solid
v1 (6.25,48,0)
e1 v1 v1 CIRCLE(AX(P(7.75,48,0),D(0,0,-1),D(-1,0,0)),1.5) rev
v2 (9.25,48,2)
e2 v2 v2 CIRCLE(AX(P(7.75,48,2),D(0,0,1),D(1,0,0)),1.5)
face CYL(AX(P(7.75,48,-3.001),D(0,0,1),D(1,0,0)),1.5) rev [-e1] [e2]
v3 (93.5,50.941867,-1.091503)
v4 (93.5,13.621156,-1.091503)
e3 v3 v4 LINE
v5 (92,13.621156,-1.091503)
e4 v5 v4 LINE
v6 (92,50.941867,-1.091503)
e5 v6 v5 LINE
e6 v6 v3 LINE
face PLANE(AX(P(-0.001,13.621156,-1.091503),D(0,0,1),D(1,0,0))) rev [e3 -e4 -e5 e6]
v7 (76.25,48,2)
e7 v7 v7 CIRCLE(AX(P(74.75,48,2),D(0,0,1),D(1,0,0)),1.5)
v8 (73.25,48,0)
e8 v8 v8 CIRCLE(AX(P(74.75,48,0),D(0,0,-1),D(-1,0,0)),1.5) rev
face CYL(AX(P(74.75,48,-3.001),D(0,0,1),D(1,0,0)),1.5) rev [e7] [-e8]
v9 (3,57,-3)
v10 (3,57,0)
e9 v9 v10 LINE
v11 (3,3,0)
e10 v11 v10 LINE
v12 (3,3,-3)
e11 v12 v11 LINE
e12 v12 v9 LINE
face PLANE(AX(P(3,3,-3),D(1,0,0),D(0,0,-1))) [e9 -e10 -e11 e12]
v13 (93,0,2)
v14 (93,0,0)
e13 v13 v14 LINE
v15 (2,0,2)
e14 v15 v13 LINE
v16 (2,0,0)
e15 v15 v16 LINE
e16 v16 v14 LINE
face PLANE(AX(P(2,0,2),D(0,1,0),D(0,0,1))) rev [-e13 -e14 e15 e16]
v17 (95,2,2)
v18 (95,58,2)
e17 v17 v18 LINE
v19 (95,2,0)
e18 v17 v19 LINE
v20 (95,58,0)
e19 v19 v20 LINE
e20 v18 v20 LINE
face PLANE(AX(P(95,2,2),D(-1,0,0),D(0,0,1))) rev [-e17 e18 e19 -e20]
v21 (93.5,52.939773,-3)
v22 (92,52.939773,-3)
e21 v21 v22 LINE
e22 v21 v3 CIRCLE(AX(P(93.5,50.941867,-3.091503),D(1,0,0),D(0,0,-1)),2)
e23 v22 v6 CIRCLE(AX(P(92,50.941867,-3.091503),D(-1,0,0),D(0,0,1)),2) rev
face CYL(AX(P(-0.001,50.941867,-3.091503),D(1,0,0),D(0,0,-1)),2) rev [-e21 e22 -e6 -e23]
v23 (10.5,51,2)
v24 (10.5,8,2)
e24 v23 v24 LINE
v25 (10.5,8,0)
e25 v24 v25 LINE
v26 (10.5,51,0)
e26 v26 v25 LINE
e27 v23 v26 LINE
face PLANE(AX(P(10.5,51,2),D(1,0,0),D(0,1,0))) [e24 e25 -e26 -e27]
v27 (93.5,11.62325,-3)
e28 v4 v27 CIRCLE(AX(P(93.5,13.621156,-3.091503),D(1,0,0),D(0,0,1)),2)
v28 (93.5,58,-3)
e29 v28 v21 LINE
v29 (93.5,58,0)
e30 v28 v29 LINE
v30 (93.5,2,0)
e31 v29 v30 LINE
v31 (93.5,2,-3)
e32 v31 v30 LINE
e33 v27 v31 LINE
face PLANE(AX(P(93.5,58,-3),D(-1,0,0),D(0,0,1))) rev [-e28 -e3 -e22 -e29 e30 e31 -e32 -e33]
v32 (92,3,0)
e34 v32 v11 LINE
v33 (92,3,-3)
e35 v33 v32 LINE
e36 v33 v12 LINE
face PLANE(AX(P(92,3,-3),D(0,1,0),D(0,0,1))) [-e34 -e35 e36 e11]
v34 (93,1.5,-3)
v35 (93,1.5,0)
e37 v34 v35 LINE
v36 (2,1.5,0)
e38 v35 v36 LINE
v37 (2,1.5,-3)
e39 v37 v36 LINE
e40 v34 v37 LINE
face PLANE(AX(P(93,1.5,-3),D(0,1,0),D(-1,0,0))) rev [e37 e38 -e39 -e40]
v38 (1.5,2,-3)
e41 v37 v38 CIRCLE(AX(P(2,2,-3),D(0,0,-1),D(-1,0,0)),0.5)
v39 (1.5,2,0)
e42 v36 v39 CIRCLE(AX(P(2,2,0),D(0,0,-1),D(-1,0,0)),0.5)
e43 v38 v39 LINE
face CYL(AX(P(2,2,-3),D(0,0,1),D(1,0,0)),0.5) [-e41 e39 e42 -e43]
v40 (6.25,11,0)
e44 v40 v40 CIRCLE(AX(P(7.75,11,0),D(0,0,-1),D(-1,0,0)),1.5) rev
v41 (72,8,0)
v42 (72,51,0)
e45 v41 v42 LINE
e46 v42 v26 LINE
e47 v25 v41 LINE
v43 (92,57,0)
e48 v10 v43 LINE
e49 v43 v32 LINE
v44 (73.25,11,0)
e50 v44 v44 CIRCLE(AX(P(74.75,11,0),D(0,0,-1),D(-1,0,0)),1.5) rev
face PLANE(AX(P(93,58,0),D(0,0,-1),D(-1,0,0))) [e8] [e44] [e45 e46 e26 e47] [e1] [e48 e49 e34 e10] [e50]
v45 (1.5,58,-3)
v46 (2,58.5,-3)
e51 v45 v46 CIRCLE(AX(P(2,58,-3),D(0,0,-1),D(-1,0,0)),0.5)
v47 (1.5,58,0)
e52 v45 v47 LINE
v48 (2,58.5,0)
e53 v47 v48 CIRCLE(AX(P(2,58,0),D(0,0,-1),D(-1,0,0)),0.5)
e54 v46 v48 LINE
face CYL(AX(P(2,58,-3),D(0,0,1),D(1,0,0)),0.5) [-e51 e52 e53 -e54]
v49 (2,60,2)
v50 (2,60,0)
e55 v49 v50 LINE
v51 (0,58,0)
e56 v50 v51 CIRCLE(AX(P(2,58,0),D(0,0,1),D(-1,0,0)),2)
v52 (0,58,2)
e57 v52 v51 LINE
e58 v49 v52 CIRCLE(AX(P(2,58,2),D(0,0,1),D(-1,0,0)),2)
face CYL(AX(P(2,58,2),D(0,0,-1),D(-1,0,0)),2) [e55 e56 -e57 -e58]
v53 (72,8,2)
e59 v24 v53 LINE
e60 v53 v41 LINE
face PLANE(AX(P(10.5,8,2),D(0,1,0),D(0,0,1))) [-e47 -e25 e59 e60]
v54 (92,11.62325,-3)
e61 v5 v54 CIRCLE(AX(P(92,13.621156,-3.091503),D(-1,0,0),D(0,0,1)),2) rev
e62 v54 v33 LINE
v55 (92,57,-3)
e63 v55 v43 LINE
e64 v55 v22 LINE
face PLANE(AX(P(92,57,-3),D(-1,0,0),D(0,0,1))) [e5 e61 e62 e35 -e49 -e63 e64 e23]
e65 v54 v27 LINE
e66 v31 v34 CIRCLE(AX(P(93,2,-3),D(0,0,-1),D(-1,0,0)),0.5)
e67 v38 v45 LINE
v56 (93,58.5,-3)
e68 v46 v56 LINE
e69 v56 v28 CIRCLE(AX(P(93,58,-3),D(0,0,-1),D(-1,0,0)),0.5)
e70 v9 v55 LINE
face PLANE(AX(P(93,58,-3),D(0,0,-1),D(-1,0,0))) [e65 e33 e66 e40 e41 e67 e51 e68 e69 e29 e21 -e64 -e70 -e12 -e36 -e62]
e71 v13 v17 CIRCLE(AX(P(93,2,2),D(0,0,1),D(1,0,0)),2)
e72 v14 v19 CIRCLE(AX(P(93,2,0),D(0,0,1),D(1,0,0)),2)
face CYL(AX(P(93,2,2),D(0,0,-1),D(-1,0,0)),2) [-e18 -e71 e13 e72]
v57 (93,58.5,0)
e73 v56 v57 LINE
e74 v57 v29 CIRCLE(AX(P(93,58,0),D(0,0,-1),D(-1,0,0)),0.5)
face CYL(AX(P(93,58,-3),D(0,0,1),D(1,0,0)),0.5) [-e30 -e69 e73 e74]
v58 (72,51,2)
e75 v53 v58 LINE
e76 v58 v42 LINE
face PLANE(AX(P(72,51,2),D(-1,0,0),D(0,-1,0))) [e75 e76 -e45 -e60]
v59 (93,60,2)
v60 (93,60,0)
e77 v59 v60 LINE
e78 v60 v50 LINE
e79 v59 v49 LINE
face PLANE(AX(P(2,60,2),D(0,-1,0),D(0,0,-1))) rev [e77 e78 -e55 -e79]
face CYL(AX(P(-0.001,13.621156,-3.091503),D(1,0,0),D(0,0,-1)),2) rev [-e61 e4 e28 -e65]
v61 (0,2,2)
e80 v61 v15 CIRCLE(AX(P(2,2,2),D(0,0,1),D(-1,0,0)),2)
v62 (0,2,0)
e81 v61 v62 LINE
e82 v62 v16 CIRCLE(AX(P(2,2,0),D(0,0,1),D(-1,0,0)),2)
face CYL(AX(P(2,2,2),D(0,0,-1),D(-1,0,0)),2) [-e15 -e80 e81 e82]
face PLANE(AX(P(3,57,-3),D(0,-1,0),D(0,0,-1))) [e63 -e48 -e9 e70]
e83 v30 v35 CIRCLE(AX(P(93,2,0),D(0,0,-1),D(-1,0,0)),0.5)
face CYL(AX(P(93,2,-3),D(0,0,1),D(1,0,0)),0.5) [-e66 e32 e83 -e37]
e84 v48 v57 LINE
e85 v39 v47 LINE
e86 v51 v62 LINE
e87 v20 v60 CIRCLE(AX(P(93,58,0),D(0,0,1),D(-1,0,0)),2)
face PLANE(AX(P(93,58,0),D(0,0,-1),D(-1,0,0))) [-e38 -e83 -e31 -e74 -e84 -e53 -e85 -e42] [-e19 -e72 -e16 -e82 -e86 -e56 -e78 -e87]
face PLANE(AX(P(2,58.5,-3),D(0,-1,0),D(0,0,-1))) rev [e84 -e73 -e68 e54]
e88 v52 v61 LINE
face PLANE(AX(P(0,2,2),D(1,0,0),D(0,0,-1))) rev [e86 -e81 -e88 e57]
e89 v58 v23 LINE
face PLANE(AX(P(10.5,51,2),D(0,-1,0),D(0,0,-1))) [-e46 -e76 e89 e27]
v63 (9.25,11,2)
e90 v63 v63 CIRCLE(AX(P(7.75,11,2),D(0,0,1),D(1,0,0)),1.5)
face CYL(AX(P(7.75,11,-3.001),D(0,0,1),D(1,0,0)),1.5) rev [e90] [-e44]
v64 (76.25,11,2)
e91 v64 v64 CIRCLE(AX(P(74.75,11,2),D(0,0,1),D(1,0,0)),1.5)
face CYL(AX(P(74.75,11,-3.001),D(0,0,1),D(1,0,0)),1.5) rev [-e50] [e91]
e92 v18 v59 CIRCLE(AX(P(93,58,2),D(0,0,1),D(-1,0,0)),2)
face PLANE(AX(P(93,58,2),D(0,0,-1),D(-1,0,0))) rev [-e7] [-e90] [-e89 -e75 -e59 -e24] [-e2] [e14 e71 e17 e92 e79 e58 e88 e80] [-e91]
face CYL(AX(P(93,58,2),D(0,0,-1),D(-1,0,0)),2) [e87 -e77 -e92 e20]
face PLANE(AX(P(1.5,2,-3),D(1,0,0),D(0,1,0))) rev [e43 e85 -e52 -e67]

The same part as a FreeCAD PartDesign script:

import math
import FreeCAD as App
import Part
import Sketcher

V = App.Vector
Q = App.Units.Quantity


def add_polygon(sketch, points):
    """Adds a closed chain of lines whose ends are joined by coincident constraints."""
    first, n = sketch.GeometryCount, len(points)
    for a, b in zip(points, points[1:] + points[:1]):
        sketch.addGeometry(Part.LineSegment(App.Vector(*a, 0), App.Vector(*b, 0)), False)
    for i in range(n):
        sketch.addConstraint(Sketcher.Constraint("Coincident", first + i, 2, first + (i + 1) % n, 1))

doc = App.newDocument("Part")
body = doc.addObject("PartDesign::Body", "Body")

# Sketch on XY plane
sketch1 = body.newObject("Sketcher::SketchObject", "Sketch")
sketch1.AttachmentSupport = (doc.getObject("XY_Plane"), [""])
sketch1.MapMode = "FlatFace"
sketch1.addGeometry(Part.LineSegment(V(2, 0, 0), V(93, 0, 0)), False)  # 0
sketch1.addGeometry(Part.ArcOfCircle(Part.Circle(V(93, 2, 0), V(0, 0, 1), 2), math.radians(-90), math.radians(0)), False)  # 1
sketch1.addGeometry(Part.LineSegment(V(95, 2, 0), V(95, 58, 0)), False)  # 2
sketch1.addGeometry(Part.ArcOfCircle(Part.Circle(V(93, 58, 0), V(0, 0, 1), 2), math.radians(0), math.radians(90)), False)  # 3
sketch1.addGeometry(Part.LineSegment(V(93, 60, 0), V(2, 60, 0)), False)  # 4
sketch1.addGeometry(Part.ArcOfCircle(Part.Circle(V(2, 58, 0), V(0, 0, 1), 2), math.radians(90), math.radians(180)), False)  # 5
sketch1.addGeometry(Part.LineSegment(V(0, 58, 0), V(0, 2, 0)), False)  # 6
sketch1.addGeometry(Part.ArcOfCircle(Part.Circle(V(2, 2, 0), V(0, 0, 1), 2), math.radians(-180), math.radians(-90)), False)  # 7
add_polygon(sketch1, [(72, 8), (10.5, 8), (10.5, 51), (72, 51)])  # lines 8-11
sketch1.addConstraint(Sketcher.Constraint("Tangent", 0, 2, 1, 1))
sketch1.addConstraint(Sketcher.Constraint("Tangent", 1, 2, 2, 1))
sketch1.addConstraint(Sketcher.Constraint("Tangent", 2, 2, 3, 1))
sketch1.addConstraint(Sketcher.Constraint("Tangent", 3, 2, 4, 1))
sketch1.addConstraint(Sketcher.Constraint("Tangent", 4, 2, 5, 1))
sketch1.addConstraint(Sketcher.Constraint("Tangent", 5, 2, 6, 1))
sketch1.addConstraint(Sketcher.Constraint("Tangent", 6, 2, 7, 1))
sketch1.addConstraint(Sketcher.Constraint("Tangent", 7, 2, 0, 1))
sketch1.addConstraint(Sketcher.Constraint("Horizontal", 0))
sketch1.addConstraint(Sketcher.Constraint("Vertical", 2))
sketch1.addConstraint(Sketcher.Constraint("Horizontal", 4))
sketch1.addConstraint(Sketcher.Constraint("Vertical", 6))
sketch1.addConstraint(Sketcher.Constraint("Horizontal", 8))
sketch1.addConstraint(Sketcher.Constraint("Vertical", 9))
sketch1.addConstraint(Sketcher.Constraint("Horizontal", 10))
sketch1.addConstraint(Sketcher.Constraint("Vertical", 11))
sketch1.addConstraint(Sketcher.Constraint("Equal", 1, 3))
sketch1.addConstraint(Sketcher.Constraint("Equal", 3, 5))
sketch1.addConstraint(Sketcher.Constraint("Equal", 5, 7))
sketch1.addConstraint(Sketcher.Constraint("PointOnObject", 0, 2, -1))
sketch1.addConstraint(Sketcher.Constraint("PointOnObject", 5, 2, -2))
sketch1.addConstraint(Sketcher.Constraint("Radius", 1, Q("2 mm")))
sketch1.addConstraint(Sketcher.Constraint("DistanceX", 0, 1, 0, 2, Q("91 mm")))
sketch1.addConstraint(Sketcher.Constraint("DistanceY", 2, 1, 2, 2, Q("56 mm")))
sketch1.addConstraint(Sketcher.Constraint("DistanceY", 9, 1, 9, 2, Q("43 mm")))
sketch1.addConstraint(Sketcher.Constraint("DistanceX", 8, 2, 8, 1, Q("61.5 mm")))
sketch1.addConstraint(Sketcher.Constraint("DistanceY", -1, 1, 8, 2, Q("8 mm")))
sketch1.addConstraint(Sketcher.Constraint("DistanceX", -1, 1, 10, 2, Q("72 mm")))
pad1 = body.newObject("PartDesign::Pad", "Pad")
pad1.Profile = sketch1
pad1.Length = 2

# Sketch on XY plane
sketch2 = body.newObject("Sketcher::SketchObject", "Sketch001")
sketch2.AttachmentSupport = (doc.getObject("XY_Plane"), [""])
sketch2.MapMode = "FlatFace"
sketch2.addGeometry(Part.LineSegment(V(93.5, 58, 0), V(93.5, 2, 0)), False)  # 0
sketch2.addGeometry(Part.ArcOfCircle(Part.Circle(V(93, 2, 0), V(0, 0, 1), 0.5), math.radians(-90), math.radians(0)), False)  # 1
sketch2.addGeometry(Part.LineSegment(V(93, 1.5, 0), V(2, 1.5, 0)), False)  # 2
sketch2.addGeometry(Part.ArcOfCircle(Part.Circle(V(2, 2, 0), V(0, 0, 1), 0.5), math.radians(180), math.radians(270)), False)  # 3
sketch2.addGeometry(Part.LineSegment(V(1.5, 2, 0), V(1.5, 58, 0)), False)  # 4
sketch2.addGeometry(Part.ArcOfCircle(Part.Circle(V(2, 58, 0), V(0, 0, 1), 0.5), math.radians(90), math.radians(180)), False)  # 5
sketch2.addGeometry(Part.LineSegment(V(2, 58.5, 0), V(93, 58.5, 0)), False)  # 6
sketch2.addGeometry(Part.ArcOfCircle(Part.Circle(V(93, 58, 0), V(0, 0, 1), 0.5), math.radians(0), math.radians(90)), False)  # 7
add_polygon(sketch2, [(3, 3), (92, 3), (92, 57), (3, 57)])  # lines 8-11
sketch2.addConstraint(Sketcher.Constraint("Tangent", 0, 2, 1, 2))
sketch2.addConstraint(Sketcher.Constraint("Tangent", 1, 1, 2, 1))
sketch2.addConstraint(Sketcher.Constraint("Tangent", 2, 2, 3, 2))
sketch2.addConstraint(Sketcher.Constraint("Tangent", 3, 1, 4, 1))
sketch2.addConstraint(Sketcher.Constraint("Tangent", 4, 2, 5, 2))
sketch2.addConstraint(Sketcher.Constraint("Tangent", 5, 1, 6, 1))
sketch2.addConstraint(Sketcher.Constraint("Tangent", 6, 2, 7, 2))
sketch2.addConstraint(Sketcher.Constraint("Tangent", 7, 1, 0, 1))
sketch2.addConstraint(Sketcher.Constraint("Vertical", 0))
sketch2.addConstraint(Sketcher.Constraint("Horizontal", 2))
sketch2.addConstraint(Sketcher.Constraint("Vertical", 4))
sketch2.addConstraint(Sketcher.Constraint("Horizontal", 6))
sketch2.addConstraint(Sketcher.Constraint("Horizontal", 8))
sketch2.addConstraint(Sketcher.Constraint("Vertical", 9))
sketch2.addConstraint(Sketcher.Constraint("Horizontal", 10))
sketch2.addConstraint(Sketcher.Constraint("Vertical", 11))
sketch2.addConstraint(Sketcher.Constraint("Equal", 1, 3))
sketch2.addConstraint(Sketcher.Constraint("Equal", 3, 5))
sketch2.addConstraint(Sketcher.Constraint("Equal", 5, 7))
sketch2.addConstraint(Sketcher.Constraint("Radius", 1, Q("0.5 mm")))
sketch2.addConstraint(Sketcher.Constraint("DistanceX", 2, 2, 2, 1, Q("91 mm")))
sketch2.addConstraint(Sketcher.Constraint("DistanceX", 8, 1, 8, 2, Q("89 mm")))
sketch2.addConstraint(Sketcher.Constraint("DistanceY", 0, 2, 0, 1, Q("56 mm")))
sketch2.addConstraint(Sketcher.Constraint("DistanceY", 9, 1, 9, 2, Q("54 mm")))
sketch2.addConstraint(Sketcher.Constraint("DistanceX", -1, 1, 1, 3, Q("93 mm")))
sketch2.addConstraint(Sketcher.Constraint("DistanceY", -1, 1, 1, 3, Q("2 mm")))
sketch2.addConstraint(Sketcher.Constraint("DistanceX", -1, 1, 8, 2, Q("92 mm")))
sketch2.addConstraint(Sketcher.Constraint("DistanceY", -1, 1, 8, 2, Q("3 mm")))
pad2 = body.newObject("PartDesign::Pad", "Pad001")
pad2.Profile = sketch2
pad2.Length = 3
pad2.Reversed = True

# Sketch on XY plane
sketch3 = body.newObject("Sketcher::SketchObject", "Sketch002")
sketch3.AttachmentSupport = (doc.getObject("XY_Plane"), [""])
sketch3.MapMode = "FlatFace"
sketch3.AttachmentOffset = App.Placement(V(0, 0, 2), App.Rotation())
sketch3.addGeometry(Part.Circle(V(7.8, 48, 0), V(0, 0, 1), 1.5), False)
sketch3.addConstraint(Sketcher.Constraint("Diameter", 0, Q("3 mm")))
sketch3.addConstraint(Sketcher.Constraint("DistanceY", -1, 1, 0, 3, Q("48 mm")))
sketch3.addConstraint(Sketcher.Constraint("DistanceX", -1, 1, 0, 3, Q("7.75 mm")))
pocket1 = body.newObject("PartDesign::Pocket", "Pocket")
pocket1.Profile = sketch3
pocket1.Type = "UpToFirst"

# Sketch on XY plane
sketch4 = body.newObject("Sketcher::SketchObject", "Sketch003")
sketch4.AttachmentSupport = (doc.getObject("XY_Plane"), [""])
sketch4.MapMode = "FlatFace"
sketch4.AttachmentOffset = App.Placement(V(0, 0, 2), App.Rotation())
sketch4.addGeometry(Part.Circle(V(74.8, 48, 0), V(0, 0, 1), 1.5), False)
sketch4.addConstraint(Sketcher.Constraint("Diameter", 0, Q("3 mm")))
sketch4.addConstraint(Sketcher.Constraint("DistanceY", -1, 1, 0, 3, Q("48 mm")))
sketch4.addConstraint(Sketcher.Constraint("DistanceX", -1, 1, 0, 3, Q("74.75 mm")))
pocket2 = body.newObject("PartDesign::Pocket", "Pocket001")
pocket2.Profile = sketch4
pocket2.Type = "UpToFirst"

# Sketch on XY plane
sketch5 = body.newObject("Sketcher::SketchObject", "Sketch004")
sketch5.AttachmentSupport = (doc.getObject("XY_Plane"), [""])
sketch5.MapMode = "FlatFace"
sketch5.AttachmentOffset = App.Placement(V(0, 0, 2), App.Rotation())
sketch5.addGeometry(Part.Circle(V(7.8, 11, 0), V(0, 0, 1), 1.5), False)
sketch5.addConstraint(Sketcher.Constraint("Diameter", 0, Q("3 mm")))
sketch5.addConstraint(Sketcher.Constraint("DistanceY", -1, 1, 0, 3, Q("11 mm")))
sketch5.addConstraint(Sketcher.Constraint("DistanceX", -1, 1, 0, 3, Q("7.75 mm")))
pocket3 = body.newObject("PartDesign::Pocket", "Pocket002")
pocket3.Profile = sketch5
pocket3.Type = "UpToFirst"

# Sketch on XY plane
sketch6 = body.newObject("Sketcher::SketchObject", "Sketch005")
sketch6.AttachmentSupport = (doc.getObject("XY_Plane"), [""])
sketch6.MapMode = "FlatFace"
sketch6.AttachmentOffset = App.Placement(V(0, 0, 2), App.Rotation())
sketch6.addGeometry(Part.Circle(V(74.8, 11, 0), V(0, 0, 1), 1.5), False)
sketch6.addConstraint(Sketcher.Constraint("Diameter", 0, Q("3 mm")))
sketch6.addConstraint(Sketcher.Constraint("DistanceY", -1, 1, 0, 3, Q("11 mm")))
sketch6.addConstraint(Sketcher.Constraint("DistanceX", -1, 1, 0, 3, Q("74.75 mm")))
pocket4 = body.newObject("PartDesign::Pocket", "Pocket003")
pocket4.Profile = sketch6
pocket4.Type = "UpToFirst"

# Sketch on YZ plane
sketch7 = body.newObject("Sketcher::SketchObject", "Sketch006")
sketch7.AttachmentSupport = (doc.getObject("YZ_Plane"), [""])
sketch7.MapMode = "FlatFace"
sketch7.AttachmentOffset = App.Placement(V(0, 0, 93.5), App.Rotation())
sketch7.addGeometry(Part.LineSegment(V(11.6, -3.1, 0), V(11.6, -6.4, 0)), False)
sketch7.addGeometry(Part.ArcOfCircle(Part.Circle(V(13.6, -6.4, 0), V(0, 0, 1), 2), math.radians(-180), math.radians(-90)), False)
sketch7.addGeometry(Part.LineSegment(V(13.6, -8.4, 0), V(50.9, -8.4, 0)), False)
sketch7.addGeometry(Part.ArcOfCircle(Part.Circle(V(50.9, -6.4, 0), V(0, 0, 1), 2), math.radians(-90), math.radians(0)), False)
sketch7.addGeometry(Part.LineSegment(V(52.9, -6.4, 0), V(52.9, -3.1, 0)), False)
sketch7.addGeometry(Part.ArcOfCircle(Part.Circle(V(50.9, -3.1, 0), V(0, 0, 1), 2), math.radians(0), math.radians(90)), False)
sketch7.addGeometry(Part.LineSegment(V(50.9, -1.1, 0), V(13.6, -1.1, 0)), False)
sketch7.addGeometry(Part.ArcOfCircle(Part.Circle(V(13.6, -3.1, 0), V(0, 0, 1), 2), math.radians(90), math.radians(180)), False)
sketch7.addConstraint(Sketcher.Constraint("Tangent", 0, 2, 1, 1))
sketch7.addConstraint(Sketcher.Constraint("Tangent", 1, 2, 2, 1))
sketch7.addConstraint(Sketcher.Constraint("Tangent", 2, 2, 3, 1))
sketch7.addConstraint(Sketcher.Constraint("Tangent", 3, 2, 4, 1))
sketch7.addConstraint(Sketcher.Constraint("Tangent", 4, 2, 5, 1))
sketch7.addConstraint(Sketcher.Constraint("Tangent", 5, 2, 6, 1))
sketch7.addConstraint(Sketcher.Constraint("Tangent", 6, 2, 7, 1))
sketch7.addConstraint(Sketcher.Constraint("Tangent", 7, 2, 0, 1))
sketch7.addConstraint(Sketcher.Constraint("Vertical", 0))
sketch7.addConstraint(Sketcher.Constraint("Horizontal", 2))
sketch7.addConstraint(Sketcher.Constraint("Vertical", 4))
sketch7.addConstraint(Sketcher.Constraint("Horizontal", 6))
sketch7.addConstraint(Sketcher.Constraint("Equal", 1, 3))
sketch7.addConstraint(Sketcher.Constraint("Equal", 3, 5))
sketch7.addConstraint(Sketcher.Constraint("Equal", 5, 7))
sketch7.addConstraint(Sketcher.Constraint("Radius", 1, Q("2 mm")))
sketch7.addConstraint(Sketcher.Constraint("DistanceX", 2, 1, 2, 2, Q("37.320712 mm")))
sketch7.addConstraint(Sketcher.Constraint("DistanceY", 0, 2, 0, 1, Q("3.267037 mm")))
sketch7.addConstraint(Sketcher.Constraint("DistanceY", 1, 3, -1, 1, Q("6.35854 mm")))
sketch7.addConstraint(Sketcher.Constraint("DistanceX", -1, 1, 1, 3, Q("13.621156 mm")))
pocket5 = body.newObject("PartDesign::Pocket", "Pocket004")
pocket5.Profile = sketch7
pocket5.Length = 1.5

doc.recompute()
